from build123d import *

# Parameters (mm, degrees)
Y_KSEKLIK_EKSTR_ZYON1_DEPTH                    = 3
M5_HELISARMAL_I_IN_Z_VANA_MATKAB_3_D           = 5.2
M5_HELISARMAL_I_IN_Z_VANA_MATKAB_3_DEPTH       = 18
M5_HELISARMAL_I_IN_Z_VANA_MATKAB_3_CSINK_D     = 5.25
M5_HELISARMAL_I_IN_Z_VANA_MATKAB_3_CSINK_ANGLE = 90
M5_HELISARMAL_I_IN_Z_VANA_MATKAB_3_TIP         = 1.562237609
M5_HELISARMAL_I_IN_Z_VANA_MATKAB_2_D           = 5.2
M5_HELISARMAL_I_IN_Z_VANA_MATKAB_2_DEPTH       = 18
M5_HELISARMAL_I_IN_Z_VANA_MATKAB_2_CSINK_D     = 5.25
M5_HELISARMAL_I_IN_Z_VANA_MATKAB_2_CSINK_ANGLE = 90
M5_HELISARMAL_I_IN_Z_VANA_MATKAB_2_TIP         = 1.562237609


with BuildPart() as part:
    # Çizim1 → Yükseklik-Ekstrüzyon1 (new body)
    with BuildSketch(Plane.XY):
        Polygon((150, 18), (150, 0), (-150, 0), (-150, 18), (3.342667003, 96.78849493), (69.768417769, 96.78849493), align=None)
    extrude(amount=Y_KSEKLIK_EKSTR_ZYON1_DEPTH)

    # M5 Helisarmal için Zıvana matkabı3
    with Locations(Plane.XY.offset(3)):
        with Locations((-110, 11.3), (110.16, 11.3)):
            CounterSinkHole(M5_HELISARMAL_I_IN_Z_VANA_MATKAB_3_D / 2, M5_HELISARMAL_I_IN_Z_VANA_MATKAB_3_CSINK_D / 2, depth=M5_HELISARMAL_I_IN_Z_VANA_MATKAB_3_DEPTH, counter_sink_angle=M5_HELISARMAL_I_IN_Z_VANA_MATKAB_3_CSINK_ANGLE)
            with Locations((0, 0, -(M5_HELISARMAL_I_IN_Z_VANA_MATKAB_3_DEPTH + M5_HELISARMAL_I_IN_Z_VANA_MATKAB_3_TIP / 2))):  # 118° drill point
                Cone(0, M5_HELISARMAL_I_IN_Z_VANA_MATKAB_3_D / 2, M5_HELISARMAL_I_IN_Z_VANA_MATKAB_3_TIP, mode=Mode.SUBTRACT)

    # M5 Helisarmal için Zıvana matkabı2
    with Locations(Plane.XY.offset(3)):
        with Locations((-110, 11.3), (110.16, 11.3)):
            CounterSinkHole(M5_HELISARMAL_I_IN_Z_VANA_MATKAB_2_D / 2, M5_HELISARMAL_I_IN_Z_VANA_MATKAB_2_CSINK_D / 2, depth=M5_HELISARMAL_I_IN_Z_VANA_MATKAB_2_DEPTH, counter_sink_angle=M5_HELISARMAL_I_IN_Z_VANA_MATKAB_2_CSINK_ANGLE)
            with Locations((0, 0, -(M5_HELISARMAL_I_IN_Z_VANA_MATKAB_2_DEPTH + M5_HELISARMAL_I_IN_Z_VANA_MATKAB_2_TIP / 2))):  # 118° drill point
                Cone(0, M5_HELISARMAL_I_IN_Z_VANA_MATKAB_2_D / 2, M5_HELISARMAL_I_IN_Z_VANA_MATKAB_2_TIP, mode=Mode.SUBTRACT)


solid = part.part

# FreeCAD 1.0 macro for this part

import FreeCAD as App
import Part
import Sketcher

V = App.Vector


def add_polygon(sketch, points):
    """Adds a closed chain of lines whose ends are joined by coincident constraints."""
    first, n = sketch.GeometryCount, len(points)
    for a, b in zip(points, points[1:] + points[:1]):
        sketch.addGeometry(Part.LineSegment(App.Vector(*a, 0), App.Vector(*b, 0)), False)
    for i in range(n):
        sketch.addConstraint(Sketcher.Constraint("Coincident", first + i, 2, first + (i + 1) % n, 1))

doc = App.newDocument("Part")
body = doc.addObject("PartDesign::Body", "Body")

# Sketch on XY plane
sketch1 = doc.addObject("Sketcher::SketchObject", "Sketch")
body.addObject(sketch1)
sketch1.AttachmentSupport = (doc.XY_Plane, [""])
sketch1.MapMode = "FlatFace"
add_polygon(sketch1, [(150, 0), (150, 18), (70, 97), (3, 97), (-150, 18), (-150, 0)])  # lines 0-5
sketch1.addConstraint(Sketcher.Constraint("Vertical", 0))
sketch1.addConstraint(Sketcher.Constraint("Horizontal", 2))
sketch1.addConstraint(Sketcher.Constraint("Vertical", 4))
sketch1.addConstraint(Sketcher.Constraint("Horizontal", 5))
sketch1.addConstraint(Sketcher.Constraint("Symmetric", 4, 2, 5, 2, -1, 1))
sketch1.addConstraint(Sketcher.Constraint("Horizontal", 0, 2, 3, 2))
sketch1.addConstraint(Sketcher.Constraint("DistanceX", 5, 1, 5, 2, 300.0))
sketch1.addConstraint(Sketcher.Constraint("DistanceY", 0, 1, 0, 2, 18.0))
sketch1.addConstraint(Sketcher.Constraint("DistanceX", 2, 2, 2, 1, 66.425751))
sketch1.addConstraint(Sketcher.Constraint("Distance", 1, 112.448805))
sketch1.addConstraint(Sketcher.Constraint("Distance", 3, 172.399537))
pad1 = doc.addObject("PartDesign::Pad", "Pad")
body.addObject(pad1)
pad1.Profile = sketch1
pad1.Length = 3

# Sketch on XY plane
sketch2 = doc.addObject("Sketcher::SketchObject", "Sketch001")
body.addObject(sketch2)
sketch2.AttachmentSupport = (doc.XY_Plane, [""])
sketch2.MapMode = "FlatFace"
sketch2.AttachmentOffset = App.Placement(V(0, 0, 3), App.Rotation())
sketch2.addGeometry(Part.Circle(V(-110, 11.3, 0), V(0, 0, 1), 2.6), False)
sketch2.addGeometry(Part.Circle(V(110.2, 11.3, 0), V(0, 0, 1), 2.6), False)
sketch2.addConstraint(Sketcher.Constraint("Equal", 0, 1))
sketch2.addConstraint(Sketcher.Constraint("Horizontal", 0, 3, 1, 3))
sketch2.addConstraint(Sketcher.Constraint("Diameter", 0, 5.2))
sketch2.addConstraint(Sketcher.Constraint("DistanceX", 0, 3, -1, 1, 110.0))
sketch2.addConstraint(Sketcher.Constraint("DistanceY", -1, 1, 0, 3, 11.3))
sketch2.addConstraint(Sketcher.Constraint("DistanceX", -1, 1, 1, 3, 110.16))
doc.recompute()
hole = doc.addObject("PartDesign::Hole", "Hole")
body.addObject(hole)
hole.Profile = sketch2
hole.ThreadType = "None"
hole.Diameter = 5.2
hole.DepthType = "Dimension"
hole.Depth = 18
hole.DrillPoint = "Angled"
hole.DrillPointAngle = 118
hole.HoleCutType = "Countersink"
hole.HoleCutDiameter = 5.25
hole.HoleCutCountersinkAngle = 90

# Sketch on XY plane
sketch3 = doc.addObject("Sketcher::SketchObject", "Sketch002")
body.addObject(sketch3)
sketch3.AttachmentSupport = (doc.XY_Plane, [""])
sketch3.MapMode = "FlatFace"
sketch3.AttachmentOffset = App.Placement(V(0, 0, 3), App.Rotation())
sketch3.addGeometry(Part.Circle(V(-110, 11.3, 0), V(0, 0, 1), 2.6), False)
sketch3.addGeometry(Part.Circle(V(110.2, 11.3, 0), V(0, 0, 1), 2.6), False)
sketch3.addConstraint(Sketcher.Constraint("Equal", 0, 1))
sketch3.addConstraint(Sketcher.Constraint("Horizontal", 0, 3, 1, 3))
sketch3.addConstraint(Sketcher.Constraint("Diameter", 0, 5.2))
sketch3.addConstraint(Sketcher.Constraint("DistanceX", 0, 3, -1, 1, 110.0))
sketch3.addConstraint(Sketcher.Constraint("DistanceY", -1, 1, 0, 3, 11.3))
sketch3.addConstraint(Sketcher.Constraint("DistanceX", -1, 1, 1, 3, 110.16))
doc.recompute()
hole2 = doc.addObject("PartDesign::Hole", "Hole001")
body.addObject(hole2)
hole2.Profile = sketch3
hole2.ThreadType = "None"
hole2.Diameter = 5.2
hole2.DepthType = "Dimension"
hole2.Depth = 18
hole2.DrillPoint = "Angled"
hole2.DrillPointAngle = 118
hole2.HoleCutType = "Countersink"
hole2.HoleCutDiameter = 5.25
hole2.HoleCutCountersinkAngle = 90

doc.recompute()
